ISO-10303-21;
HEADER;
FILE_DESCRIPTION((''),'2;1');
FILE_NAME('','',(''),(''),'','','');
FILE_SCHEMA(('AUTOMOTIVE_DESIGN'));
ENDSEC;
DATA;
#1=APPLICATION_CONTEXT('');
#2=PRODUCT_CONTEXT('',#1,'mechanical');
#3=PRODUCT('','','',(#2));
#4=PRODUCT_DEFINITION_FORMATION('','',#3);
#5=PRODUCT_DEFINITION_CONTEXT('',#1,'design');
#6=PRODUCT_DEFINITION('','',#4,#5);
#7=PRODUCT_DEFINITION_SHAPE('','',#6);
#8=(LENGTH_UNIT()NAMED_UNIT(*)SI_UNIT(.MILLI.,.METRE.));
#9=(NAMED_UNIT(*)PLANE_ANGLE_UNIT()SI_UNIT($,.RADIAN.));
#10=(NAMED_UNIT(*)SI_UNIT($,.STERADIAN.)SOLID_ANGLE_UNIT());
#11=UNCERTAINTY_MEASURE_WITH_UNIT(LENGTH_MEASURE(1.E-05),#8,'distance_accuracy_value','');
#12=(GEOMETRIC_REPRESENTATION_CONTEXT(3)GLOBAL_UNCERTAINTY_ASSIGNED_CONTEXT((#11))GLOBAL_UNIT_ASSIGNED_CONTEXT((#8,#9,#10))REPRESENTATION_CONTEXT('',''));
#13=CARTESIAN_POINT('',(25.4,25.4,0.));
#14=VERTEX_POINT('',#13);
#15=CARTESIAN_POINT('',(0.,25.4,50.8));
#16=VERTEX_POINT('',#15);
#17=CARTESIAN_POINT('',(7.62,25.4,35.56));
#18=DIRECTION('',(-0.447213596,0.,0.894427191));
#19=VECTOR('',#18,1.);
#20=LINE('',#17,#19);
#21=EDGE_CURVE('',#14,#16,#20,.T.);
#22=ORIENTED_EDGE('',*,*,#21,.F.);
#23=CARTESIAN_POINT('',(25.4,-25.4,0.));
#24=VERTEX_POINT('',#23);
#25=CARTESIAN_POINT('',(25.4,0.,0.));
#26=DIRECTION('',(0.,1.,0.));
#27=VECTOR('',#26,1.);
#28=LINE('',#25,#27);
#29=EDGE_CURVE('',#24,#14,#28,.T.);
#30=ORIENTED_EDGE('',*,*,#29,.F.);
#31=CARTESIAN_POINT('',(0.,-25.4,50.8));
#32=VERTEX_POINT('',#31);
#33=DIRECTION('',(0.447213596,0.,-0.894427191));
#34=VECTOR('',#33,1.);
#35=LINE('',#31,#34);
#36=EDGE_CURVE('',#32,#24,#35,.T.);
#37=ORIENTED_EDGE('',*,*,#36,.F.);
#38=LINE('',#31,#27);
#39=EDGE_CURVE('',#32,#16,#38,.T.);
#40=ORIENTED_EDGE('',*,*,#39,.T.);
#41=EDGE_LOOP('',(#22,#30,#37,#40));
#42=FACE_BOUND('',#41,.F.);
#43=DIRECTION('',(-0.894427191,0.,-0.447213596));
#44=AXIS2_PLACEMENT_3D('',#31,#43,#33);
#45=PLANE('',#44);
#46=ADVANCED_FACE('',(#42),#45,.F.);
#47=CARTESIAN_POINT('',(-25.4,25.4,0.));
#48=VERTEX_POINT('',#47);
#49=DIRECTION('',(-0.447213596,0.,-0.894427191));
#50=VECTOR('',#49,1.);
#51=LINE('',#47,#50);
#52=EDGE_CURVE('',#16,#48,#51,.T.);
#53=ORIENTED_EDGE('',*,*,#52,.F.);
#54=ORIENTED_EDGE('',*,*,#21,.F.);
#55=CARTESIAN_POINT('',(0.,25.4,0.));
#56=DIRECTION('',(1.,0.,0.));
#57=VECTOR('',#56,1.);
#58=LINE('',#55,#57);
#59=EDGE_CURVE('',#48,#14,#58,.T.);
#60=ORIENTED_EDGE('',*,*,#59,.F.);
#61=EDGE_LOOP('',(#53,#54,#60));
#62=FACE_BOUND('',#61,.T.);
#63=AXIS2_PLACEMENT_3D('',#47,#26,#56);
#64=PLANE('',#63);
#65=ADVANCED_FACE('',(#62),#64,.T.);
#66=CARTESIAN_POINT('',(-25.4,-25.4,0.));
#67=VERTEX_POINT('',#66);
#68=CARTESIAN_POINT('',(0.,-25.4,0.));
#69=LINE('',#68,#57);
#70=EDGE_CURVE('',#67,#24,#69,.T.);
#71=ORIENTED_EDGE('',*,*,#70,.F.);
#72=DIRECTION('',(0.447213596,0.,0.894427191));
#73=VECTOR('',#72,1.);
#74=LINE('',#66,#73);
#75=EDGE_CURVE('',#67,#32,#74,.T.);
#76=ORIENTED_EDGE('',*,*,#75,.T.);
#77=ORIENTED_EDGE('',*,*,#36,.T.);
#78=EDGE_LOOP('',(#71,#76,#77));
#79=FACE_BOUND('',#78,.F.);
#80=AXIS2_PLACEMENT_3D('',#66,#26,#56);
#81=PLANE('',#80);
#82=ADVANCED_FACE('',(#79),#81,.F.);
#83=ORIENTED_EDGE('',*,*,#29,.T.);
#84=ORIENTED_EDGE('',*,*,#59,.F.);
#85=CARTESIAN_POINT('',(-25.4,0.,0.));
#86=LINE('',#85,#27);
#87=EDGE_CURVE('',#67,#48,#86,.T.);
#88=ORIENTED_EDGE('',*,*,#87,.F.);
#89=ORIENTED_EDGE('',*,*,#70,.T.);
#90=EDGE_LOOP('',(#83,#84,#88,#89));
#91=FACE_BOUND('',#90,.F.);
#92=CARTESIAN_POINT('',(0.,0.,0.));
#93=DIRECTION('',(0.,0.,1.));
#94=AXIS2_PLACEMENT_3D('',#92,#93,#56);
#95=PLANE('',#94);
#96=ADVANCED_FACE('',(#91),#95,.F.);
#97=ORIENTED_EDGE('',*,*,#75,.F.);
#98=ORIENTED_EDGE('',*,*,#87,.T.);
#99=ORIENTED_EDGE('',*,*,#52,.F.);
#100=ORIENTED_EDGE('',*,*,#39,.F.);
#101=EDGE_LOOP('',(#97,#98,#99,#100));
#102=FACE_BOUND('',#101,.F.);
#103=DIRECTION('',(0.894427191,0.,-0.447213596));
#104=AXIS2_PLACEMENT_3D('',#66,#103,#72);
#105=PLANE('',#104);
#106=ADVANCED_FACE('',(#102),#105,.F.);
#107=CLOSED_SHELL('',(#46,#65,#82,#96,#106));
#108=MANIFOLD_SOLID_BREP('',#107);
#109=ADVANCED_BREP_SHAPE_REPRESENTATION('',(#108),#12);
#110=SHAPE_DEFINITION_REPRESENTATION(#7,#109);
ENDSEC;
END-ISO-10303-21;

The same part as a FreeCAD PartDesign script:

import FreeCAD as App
import Part
import Sketcher
from FreeCAD import Vector
Q = App.Units.Quantity


def add_polygon(sketch, points):
    """Adds a closed chain of lines whose ends are joined by coincident constraints."""
    first, n = sketch.GeometryCount, len(points)
    for a, b in zip(points, points[1:] + points[:1]):
        sketch.addGeometry(Part.LineSegment(App.Vector(*a, 0), App.Vector(*b, 0)), False)
    for i in range(n):
        sketch.addConstraint(Sketcher.Constraint("Coincident", first + i, 2, first + (i + 1) % n, 1))

doc = App.newDocument("Part")
body = doc.addObject("PartDesign::Body", "Body")

sketch1 = body.newObject("Sketcher::SketchObject", "Sketch")
sketch1.AttachmentSupport = (doc.getObject("XY_Plane"), [""])
sketch1.MapMode = "FlatFace"
add_polygon(sketch1, [(-25, 25), (-25, -25), (25, -25), (25, 25)])
sketch1.addConstraint(Sketcher.Constraint("Vertical", 0))
sketch1.addConstraint(Sketcher.Constraint("Horizontal", 1))
sketch1.addConstraint(Sketcher.Constraint("Vertical", 2))
sketch1.addConstraint(Sketcher.Constraint("Horizontal", 3))
sketch1.addConstraint(Sketcher.Constraint("Symmetric", 0, 2, 2, 2, -1, 1))
sketch1.addConstraint(Sketcher.Constraint("Equal", 3, 0))
sketch1.addConstraint(Sketcher.Constraint("DistanceX", 1, 1, 1, 2, Q("2 in")))
pad1 = body.newObject("PartDesign::Pad", "Pad")
pad1.Profile = sketch1
pad1.Length = Q("2 in")

sketch2 = body.newObject("Sketcher::SketchObject", "Sketch001")
sketch2.AttachmentSupport = (doc.getObject("XZ_Plane"), [""])
sketch2.MapMode = "FlatFace"
sketch2.AttachmentOffset = App.Placement(Vector(0, 0, 1 * 25.4), App.Rotation())
add_polygon(sketch2, [(-25, 0), (0, 51), (-25, 51)])
sketch2.addConstraint(Sketcher.Constraint("Horizontal", 1))
sketch2.addConstraint(Sketcher.Constraint("Vertical", 2))
sketch2.addConstraint(Sketcher.Constraint("PointOnObject", 0, 2, -2))
sketch2.addConstraint(Sketcher.Constraint("PointOnObject", 2, 2, -1))
sketch2.addConstraint(Sketcher.Constraint("DistanceX", 1, 2, 1, 1, Q("1 in")))
sketch2.addConstraint(Sketcher.Constraint("DistanceY", 2, 2, 2, 1, Q("2 in")))
pocket1 = body.newObject("PartDesign::Pocket", "Pocket")
pocket1.Profile = sketch2
pocket1.Length = Q("3 in")

sketch3 = body.newObject("Sketcher::SketchObject", "Sketch002")
sketch3.AttachmentSupport = (doc.getObject("XZ_Plane"), [""])
sketch3.MapMode = "FlatFace"
sketch3.AttachmentOffset = App.Placement(Vector(0, 0, 1 * 25.4), App.Rotation())
add_polygon(sketch3, [(25, 51), (0, 51), (25, 0)])
sketch3.addConstraint(Sketcher.Constraint("Horizontal", 0))
sketch3.addConstraint(Sketcher.Constraint("Vertical", 2))
sketch3.addConstraint(Sketcher.Constraint("PointOnObject", 0, 2, -2))
sketch3.addConstraint(Sketcher.Constraint("PointOnObject", 1, 2, -1))
sketch3.addConstraint(Sketcher.Constraint("DistanceX", 0, 2, 0, 1, Q("1 in")))
sketch3.addConstraint(Sketcher.Constraint("DistanceY", 2, 1, 2, 2, Q("2 in")))
pocket2 = body.newObject("PartDesign::Pocket", "Pocket001")
pocket2.Profile = sketch3
pocket2.Length = Q("3 in")

doc.recompute()
